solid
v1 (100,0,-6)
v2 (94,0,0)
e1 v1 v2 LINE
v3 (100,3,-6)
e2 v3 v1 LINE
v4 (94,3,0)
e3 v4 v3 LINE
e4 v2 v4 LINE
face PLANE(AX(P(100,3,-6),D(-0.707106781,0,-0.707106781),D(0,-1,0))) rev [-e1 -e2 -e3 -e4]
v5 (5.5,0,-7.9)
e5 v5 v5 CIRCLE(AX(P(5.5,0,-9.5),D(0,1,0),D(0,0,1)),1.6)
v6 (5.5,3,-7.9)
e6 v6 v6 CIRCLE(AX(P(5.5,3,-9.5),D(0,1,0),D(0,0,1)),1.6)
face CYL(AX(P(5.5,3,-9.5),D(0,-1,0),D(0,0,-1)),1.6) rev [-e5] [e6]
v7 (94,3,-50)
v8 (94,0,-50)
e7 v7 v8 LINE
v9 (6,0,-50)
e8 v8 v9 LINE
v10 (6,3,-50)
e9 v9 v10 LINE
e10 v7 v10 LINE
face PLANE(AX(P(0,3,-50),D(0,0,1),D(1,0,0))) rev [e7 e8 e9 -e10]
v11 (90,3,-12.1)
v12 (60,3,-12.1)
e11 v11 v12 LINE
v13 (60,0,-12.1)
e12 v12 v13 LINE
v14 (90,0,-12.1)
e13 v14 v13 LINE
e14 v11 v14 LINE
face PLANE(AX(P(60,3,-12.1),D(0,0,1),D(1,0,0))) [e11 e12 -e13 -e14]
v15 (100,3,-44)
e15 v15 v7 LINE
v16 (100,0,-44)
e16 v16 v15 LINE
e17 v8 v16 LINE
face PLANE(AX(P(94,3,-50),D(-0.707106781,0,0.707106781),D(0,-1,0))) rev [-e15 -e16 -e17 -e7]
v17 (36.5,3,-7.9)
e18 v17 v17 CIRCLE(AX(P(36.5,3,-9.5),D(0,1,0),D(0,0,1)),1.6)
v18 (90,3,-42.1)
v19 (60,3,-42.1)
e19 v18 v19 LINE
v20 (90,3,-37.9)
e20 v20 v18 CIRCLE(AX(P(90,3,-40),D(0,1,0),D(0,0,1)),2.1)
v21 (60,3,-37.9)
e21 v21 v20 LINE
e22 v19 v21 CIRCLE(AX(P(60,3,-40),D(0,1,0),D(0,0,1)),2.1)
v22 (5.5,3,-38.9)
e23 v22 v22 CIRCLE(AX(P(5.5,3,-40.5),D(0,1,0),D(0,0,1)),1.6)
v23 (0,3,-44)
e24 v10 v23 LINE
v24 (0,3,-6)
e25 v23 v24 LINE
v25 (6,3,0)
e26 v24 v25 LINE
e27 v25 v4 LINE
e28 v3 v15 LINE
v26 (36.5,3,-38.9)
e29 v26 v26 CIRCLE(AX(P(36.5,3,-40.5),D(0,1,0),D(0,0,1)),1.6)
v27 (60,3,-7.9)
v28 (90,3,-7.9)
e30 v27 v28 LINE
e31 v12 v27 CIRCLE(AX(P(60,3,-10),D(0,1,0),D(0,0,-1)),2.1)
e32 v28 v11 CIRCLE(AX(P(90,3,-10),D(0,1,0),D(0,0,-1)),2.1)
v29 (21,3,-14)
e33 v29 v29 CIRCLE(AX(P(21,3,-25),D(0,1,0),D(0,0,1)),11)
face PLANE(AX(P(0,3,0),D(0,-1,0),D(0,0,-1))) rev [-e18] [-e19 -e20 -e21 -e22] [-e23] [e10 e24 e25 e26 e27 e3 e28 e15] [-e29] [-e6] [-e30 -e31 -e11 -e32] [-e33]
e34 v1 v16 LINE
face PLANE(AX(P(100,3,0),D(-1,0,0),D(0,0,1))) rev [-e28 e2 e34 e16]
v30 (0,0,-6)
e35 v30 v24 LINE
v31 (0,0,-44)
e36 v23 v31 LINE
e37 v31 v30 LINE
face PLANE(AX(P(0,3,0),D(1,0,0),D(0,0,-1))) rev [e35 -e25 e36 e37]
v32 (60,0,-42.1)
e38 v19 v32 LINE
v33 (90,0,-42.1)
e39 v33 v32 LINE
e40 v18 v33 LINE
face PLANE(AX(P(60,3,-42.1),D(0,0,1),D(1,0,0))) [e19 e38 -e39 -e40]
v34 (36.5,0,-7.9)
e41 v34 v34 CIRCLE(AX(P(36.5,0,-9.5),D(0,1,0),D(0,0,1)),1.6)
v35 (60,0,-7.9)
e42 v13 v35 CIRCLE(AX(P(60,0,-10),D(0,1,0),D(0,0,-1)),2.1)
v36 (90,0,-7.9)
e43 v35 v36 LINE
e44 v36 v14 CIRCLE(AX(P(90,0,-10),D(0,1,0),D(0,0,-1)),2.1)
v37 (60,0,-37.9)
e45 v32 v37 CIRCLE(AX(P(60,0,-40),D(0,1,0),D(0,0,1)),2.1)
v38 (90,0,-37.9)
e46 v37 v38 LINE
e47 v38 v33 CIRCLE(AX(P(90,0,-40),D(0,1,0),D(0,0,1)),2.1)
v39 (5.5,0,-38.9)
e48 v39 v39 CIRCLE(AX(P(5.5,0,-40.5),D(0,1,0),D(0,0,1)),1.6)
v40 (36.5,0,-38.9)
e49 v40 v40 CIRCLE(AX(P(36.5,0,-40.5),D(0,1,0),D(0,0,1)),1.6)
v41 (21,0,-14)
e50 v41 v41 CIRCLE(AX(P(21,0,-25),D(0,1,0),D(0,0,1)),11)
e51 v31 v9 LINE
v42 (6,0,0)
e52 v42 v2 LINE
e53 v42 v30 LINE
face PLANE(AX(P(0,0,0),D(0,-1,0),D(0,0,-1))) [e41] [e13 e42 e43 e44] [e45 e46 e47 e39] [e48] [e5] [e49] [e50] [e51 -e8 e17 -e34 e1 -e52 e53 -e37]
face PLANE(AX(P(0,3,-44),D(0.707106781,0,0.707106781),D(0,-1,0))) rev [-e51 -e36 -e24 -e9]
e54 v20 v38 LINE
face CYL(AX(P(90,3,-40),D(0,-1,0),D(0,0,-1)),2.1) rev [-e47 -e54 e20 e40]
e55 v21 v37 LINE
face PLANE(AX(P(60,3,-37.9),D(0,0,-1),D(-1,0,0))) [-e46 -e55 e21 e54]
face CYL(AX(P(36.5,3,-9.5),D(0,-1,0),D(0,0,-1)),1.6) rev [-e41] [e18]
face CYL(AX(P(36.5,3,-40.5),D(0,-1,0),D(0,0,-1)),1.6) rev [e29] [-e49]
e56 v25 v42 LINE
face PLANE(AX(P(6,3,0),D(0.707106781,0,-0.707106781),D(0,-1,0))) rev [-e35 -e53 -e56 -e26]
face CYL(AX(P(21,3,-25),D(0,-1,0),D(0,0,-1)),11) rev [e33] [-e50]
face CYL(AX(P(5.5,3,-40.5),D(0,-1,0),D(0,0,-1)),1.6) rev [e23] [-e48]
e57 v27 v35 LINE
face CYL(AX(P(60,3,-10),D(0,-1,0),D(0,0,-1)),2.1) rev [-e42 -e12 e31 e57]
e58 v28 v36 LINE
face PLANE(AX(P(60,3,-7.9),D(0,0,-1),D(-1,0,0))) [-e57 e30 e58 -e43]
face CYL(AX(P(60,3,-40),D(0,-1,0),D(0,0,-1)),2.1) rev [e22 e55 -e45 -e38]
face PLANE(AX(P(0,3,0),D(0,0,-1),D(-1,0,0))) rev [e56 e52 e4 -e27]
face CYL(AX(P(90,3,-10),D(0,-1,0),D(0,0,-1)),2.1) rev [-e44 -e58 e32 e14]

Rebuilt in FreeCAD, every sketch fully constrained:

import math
import FreeCAD as App
import Part
import Sketcher

V = App.Vector
Q = App.Units.Quantity


def edges_at(feature, points):
    """Names of the edges that pass closest to the given points."""
    edges = feature.Shape.Edges
    near = lambda p: min(range(len(edges)), key=lambda i: edges[i].distToShape(Part.Vertex(*p))[0])
    return sorted({f"Edge{near(p) + 1}" for p in points})

doc = App.newDocument("Part")
params = doc.addObject("Spreadsheet::Sheet", "Params")
for row, (alias, value) in enumerate([
    ("sketch1_diameter", "22 mm"),
    ("sketch1_diameter2", "3.2 mm"),
    ("sketch1_radius", "2.1 mm"),
    ("sketch1_width", "100 mm"),
    ("sketch1_width2", "30 mm"),
    ("pad1_length", "3 mm"),
    ("chamfer_size", "6 mm"),
], start=1):
    params.set(f"A{row}", alias)
    params.set(f"B{row}", "=" + value)
    params.setAlias(f"B{row}", alias)

body = doc.addObject("PartDesign::Body", "Body")

# Sketch on XZ plane
sketch1 = body.newObject("Sketcher::SketchObject", "Sketch")
sketch1.AttachmentSupport = (doc.getObject("XZ_Plane"), [""])
sketch1.MapMode = "FlatFace"
sketch1.addGeometry([
    Part.LineSegment(V(0, -50, 0), V(0, 0, 0)),  # 0
    Part.LineSegment(V(0, 0, 0), V(100, 0, 0)),  # 1
    Part.LineSegment(V(100, 0, 0), V(100, -50, 0)),  # 2
    Part.LineSegment(V(100, -50, 0), V(0, -50, 0)),  # 3
    Part.Circle(V(5.5, -9.5, 0), V(0, 0, 1), 1.6),  # 4
    Part.Circle(V(36.5, -9.5, 0), V(0, 0, 1), 1.6),  # 5
    Part.LineSegment(V(90, -7.9, 0), V(60, -7.9, 0)),  # 6
    Part.ArcOfCircle(Part.Circle(V(60, -10, 0), V(0, 0, 1), 2.1), math.radians(90), math.radians(270)),  # 7
    Part.LineSegment(V(60, -12.1, 0), V(90, -12.1, 0)),  # 8
    Part.ArcOfCircle(Part.Circle(V(90, -10, 0), V(0, 0, 1), 2.1), math.radians(-90), math.radians(90)),  # 9
    Part.Circle(V(21, -25, 0), V(0, 0, 1), 11),  # 10
    Part.Circle(V(5.5, -40.5, 0), V(0, 0, 1), 1.6),  # 11
    Part.Circle(V(36.5, -40.5, 0), V(0, 0, 1), 1.6),  # 12
    Part.ArcOfCircle(Part.Circle(V(60, -40, 0), V(0, 0, 1), 2.1), math.radians(90), math.radians(270)),  # 13
    Part.LineSegment(V(60, -42.1, 0), V(90, -42.1, 0)),  # 14
    Part.ArcOfCircle(Part.Circle(V(90, -40, 0), V(0, 0, 1), 2.1), math.radians(-90), math.radians(90)),  # 15
    Part.LineSegment(V(90, -37.9, 0), V(60, -37.9, 0)),  # 16
], False)
sketch1.addConstraint([
    Sketcher.Constraint("Coincident", 0, 2, 1, 1),
    Sketcher.Constraint("Coincident", 1, 2, 2, 1),
    Sketcher.Constraint("Coincident", 2, 2, 3, 1),
    Sketcher.Constraint("Coincident", 3, 2, 0, 1),
    Sketcher.Constraint("Tangent", 6, 2, 7, 1),
    Sketcher.Constraint("Tangent", 7, 2, 8, 1),
    Sketcher.Constraint("Tangent", 8, 2, 9, 1),
    Sketcher.Constraint("Tangent", 9, 2, 6, 1),
    Sketcher.Constraint("Tangent", 13, 2, 14, 1),
    Sketcher.Constraint("Tangent", 14, 2, 15, 1),
    Sketcher.Constraint("Tangent", 15, 2, 16, 1),
    Sketcher.Constraint("Tangent", 16, 2, 13, 1),
    Sketcher.Constraint("Vertical", 0),
    Sketcher.Constraint("Horizontal", 1),
    Sketcher.Constraint("Vertical", 2),
    Sketcher.Constraint("Horizontal", 3),
    Sketcher.Constraint("Horizontal", 6),
    Sketcher.Constraint("Horizontal", 8),
    Sketcher.Constraint("Horizontal", 14),
    Sketcher.Constraint("Horizontal", 16),
    Sketcher.Constraint("Coincident", 0, 2, -1, 1),
    Sketcher.Constraint("Equal", 4, 5),
    Sketcher.Constraint("Equal", 5, 11),
    Sketcher.Constraint("Equal", 11, 12),
    Sketcher.Constraint("Equal", 9, 13),
    Sketcher.Constraint("Horizontal", 4, 3, 5, 3),
    Sketcher.Constraint("Horizontal", 11, 3, 12, 3),
    Sketcher.Constraint("Vertical", 4, 3, 11, 3),
    Sketcher.Constraint("Vertical", 5, 3, 12, 3),
    Sketcher.Constraint("Vertical", 7, 3, 13, 3),
    Sketcher.Constraint("Vertical", 9, 3, 15, 3),
    Sketcher.Constraint("Diameter", 10, Q("22 mm")),
    Sketcher.Constraint("Diameter", 4, Q("3.2 mm")),
    Sketcher.Constraint("Radius", 7, Q("2.1 mm")),
    Sketcher.Constraint("DistanceX", 1, 1, 1, 2, Q("100 mm")),
    Sketcher.Constraint("DistanceX", 6, 2, 6, 1, Q("30 mm")),
    Sketcher.Constraint("DistanceY", 0, 1, 0, 2, Q("50 mm")),
    Sketcher.Constraint("DistanceX", -1, 1, 7, 3, Q("60 mm")),
    Sketcher.Constraint("DistanceY", 7, 3, -1, 1, Q("10 mm")),
    Sketcher.Constraint("DistanceX", -1, 1, 10, 3, Q("21 mm")),
    Sketcher.Constraint("DistanceY", 10, 3, -1, 1, Q("25 mm")),
    Sketcher.Constraint("DistanceY", 13, 3, -1, 1, Q("40 mm")),
    Sketcher.Constraint("DistanceX", 4, 3, 5, 3, Q("31 mm")),
    Sketcher.Constraint("DistanceY", 11, 3, 4, 3, Q("31 mm")),
    Sketcher.Constraint("DistanceX", -1, 1, 4, 3, Q("5.5 mm")),
    Sketcher.Constraint("DistanceY", 4, 3, -1, 1, Q("9.5 mm")),
])
sketch1.setExpression("Constraints[31]", "Params.sketch1_diameter")
sketch1.setExpression("Constraints[32]", "Params.sketch1_diameter2")
sketch1.setExpression("Constraints[33]", "Params.sketch1_radius")
sketch1.setExpression("Constraints[34]", "Params.sketch1_width")
sketch1.setExpression("Constraints[35]", "Params.sketch1_width2")
pad1 = body.newObject("PartDesign::Pad", "Pad")
pad1.Profile = sketch1
pad1.setExpression("Length", "Params.pad1_length")
pad1.Reversed = True
doc.recompute()

chamfer = body.newObject("PartDesign::Chamfer", "Chamfer")
chamfer.Base = (pad1, edges_at(pad1, [
    (0, 1.5, -50),
    (100, 1.5, -50),
    (100, 1.5, 0),
    (0, 1.5, 0),
]))
chamfer.setExpression("Size", "Params.chamfer_size")

doc.recompute()
